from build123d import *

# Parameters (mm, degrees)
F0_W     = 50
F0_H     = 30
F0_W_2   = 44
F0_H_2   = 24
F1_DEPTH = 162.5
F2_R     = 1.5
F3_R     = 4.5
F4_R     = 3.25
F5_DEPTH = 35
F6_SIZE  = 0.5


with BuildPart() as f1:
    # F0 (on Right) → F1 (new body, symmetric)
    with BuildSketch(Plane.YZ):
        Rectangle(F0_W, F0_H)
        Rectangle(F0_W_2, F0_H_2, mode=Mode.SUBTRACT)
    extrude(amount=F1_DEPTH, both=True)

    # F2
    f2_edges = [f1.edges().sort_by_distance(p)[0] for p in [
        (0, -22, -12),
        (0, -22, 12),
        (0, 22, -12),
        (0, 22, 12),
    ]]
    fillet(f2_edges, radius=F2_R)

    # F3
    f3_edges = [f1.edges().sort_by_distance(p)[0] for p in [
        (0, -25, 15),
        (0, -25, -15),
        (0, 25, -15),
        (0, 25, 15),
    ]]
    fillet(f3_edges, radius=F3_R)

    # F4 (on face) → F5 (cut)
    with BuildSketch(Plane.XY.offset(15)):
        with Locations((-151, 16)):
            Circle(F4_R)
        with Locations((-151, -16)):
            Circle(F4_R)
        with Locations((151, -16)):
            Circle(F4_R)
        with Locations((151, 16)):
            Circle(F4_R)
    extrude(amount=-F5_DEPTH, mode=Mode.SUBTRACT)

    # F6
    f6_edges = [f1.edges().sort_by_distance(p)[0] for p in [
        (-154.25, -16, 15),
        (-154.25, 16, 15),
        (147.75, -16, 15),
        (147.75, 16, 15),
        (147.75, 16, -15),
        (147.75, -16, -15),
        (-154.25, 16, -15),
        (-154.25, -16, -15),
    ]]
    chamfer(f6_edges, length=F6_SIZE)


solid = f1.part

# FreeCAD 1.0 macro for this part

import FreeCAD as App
import Part
import Sketcher
from FreeCAD import Vector


def edges_at(feature, points):
    """Names of the edges that pass closest to the given points."""
    edges = feature.Shape.Edges
    near = lambda p: min(range(len(edges)), key=lambda i: edges[i].distToShape(Part.Vertex(*p))[0])
    return sorted({f"Edge{near(p) + 1}" for p in points})


def add_polygon(sketch, points):
    """Adds a closed chain of lines whose ends are joined by coincident constraints."""
    first, n = sketch.GeometryCount, len(points)
    for a, b in zip(points, points[1:] + points[:1]):
        sketch.addGeometry(Part.LineSegment(App.Vector(*a, 0), App.Vector(*b, 0)), False)
    for i in range(n):
        sketch.addConstraint(Sketcher.Constraint("Coincident", first + i, 2, first + (i + 1) % n, 1))

doc = App.newDocument("Part")
body = doc.addObject("PartDesign::Body", "Body")

# Sketch on YZ plane
sketch1 = body.newObject("Sketcher::SketchObject", "Sketch")
sketch1.AttachmentSupport = (doc.getObject("YZ_Plane"), [""])
sketch1.MapMode = "FlatFace"
add_polygon(sketch1, [(-25, 15), (-25, -15), (25, -15), (25, 15)])  # lines 0-3
add_polygon(sketch1, [(22, -12), (-22, -12), (-22, 12), (22, 12)])  # lines 4-7
sketch1.addConstraint([
    Sketcher.Constraint("Vertical", 0),
    Sketcher.Constraint("Horizontal", 1),
    Sketcher.Constraint("Vertical", 2),
    Sketcher.Constraint("Horizontal", 3),
    Sketcher.Constraint("Horizontal", 4),
    Sketcher.Constraint("Vertical", 5),
    Sketcher.Constraint("Horizontal", 6),
    Sketcher.Constraint("Vertical", 7),
    Sketcher.Constraint("Symmetric", 0, 2, 2, 2, -1, 1),
    Sketcher.Constraint("Symmetric", 4, 2, 6, 2, -1, 1),
    Sketcher.Constraint("DistanceX", 1, 1, 1, 2, 50.0),
    Sketcher.Constraint("DistanceX", 4, 2, 4, 1, 44.0),
    Sketcher.Constraint("DistanceY", 0, 2, 0, 1, 30.0),
    Sketcher.Constraint("DistanceY", 5, 1, 5, 2, 24.0),
])
pad1 = body.newObject("PartDesign::Pad", "Pad")
pad1.Profile = sketch1
pad1.Length = 325
pad1.Midplane = True
doc.recompute()

fillet = body.newObject("PartDesign::Fillet", "Fillet")
fillet.Base = (pad1, edges_at(pad1, [
    (0, -22, -12),
    (0, -22, 12),
    (0, 22, -12),
    (0, 22, 12),
]))
fillet.Radius = 1.5
doc.recompute()

fillet2 = body.newObject("PartDesign::Fillet", "Fillet001")
fillet2.Base = (fillet, edges_at(fillet, [
    (0, -25, 15),
    (0, -25, -15),
    (0, 25, -15),
    (0, 25, 15),
]))
fillet2.Radius = 4.5

# Sketch on XY plane
sketch2 = body.newObject("Sketcher::SketchObject", "Sketch001")
sketch2.AttachmentSupport = (doc.getObject("XY_Plane"), [""])
sketch2.MapMode = "FlatFace"
sketch2.AttachmentOffset = App.Placement(Vector(0, 0, 15), App.Rotation())
sketch2.addGeometry([
    Part.Circle(Vector(-151, 16, 0), Vector(0, 0, 1), 3.2),
    Part.Circle(Vector(-151, -16, 0), Vector(0, 0, 1), 3.2),
    Part.Circle(Vector(151, -16, 0), Vector(0, 0, 1), 3.2),
    Part.Circle(Vector(151, 16, 0), Vector(0, 0, 1), 3.2),
], False)
sketch2.addConstraint([
    Sketcher.Constraint("Equal", 0, 1),
    Sketcher.Constraint("Equal", 1, 2),
    Sketcher.Constraint("Equal", 2, 3),
    Sketcher.Constraint("Symmetric", 0, 3, 2, 3, -1, 1),
    Sketcher.Constraint("Symmetric", 1, 3, 3, 3, -1, 1),
    Sketcher.Constraint("Symmetric", 1, 3, 2, 3, -2),
    Sketcher.Constraint("Diameter", 0, 6.5),
    Sketcher.Constraint("DistanceX", 0, 3, -1, 1, 151.0),
    Sketcher.Constraint("DistanceY", -1, 1, 0, 3, 16.0),
])
pocket1 = body.newObject("PartDesign::Pocket", "Pocket")
pocket1.Profile = sketch2
pocket1.Length = 35
doc.recompute()

chamfer = body.newObject("PartDesign::Chamfer", "Chamfer")
chamfer.Base = (pocket1, edges_at(pocket1, [
    (-154.25, -16, 15),
    (-154.25, 16, 15),
    (147.75, -16, 15),
    (147.75, 16, 15),
    (147.75, 16, -15),
    (147.75, -16, -15),
    (-154.25, 16, -15),
    (-154.25, -16, -15),
]))
chamfer.Size = 0.5

doc.recompute()
